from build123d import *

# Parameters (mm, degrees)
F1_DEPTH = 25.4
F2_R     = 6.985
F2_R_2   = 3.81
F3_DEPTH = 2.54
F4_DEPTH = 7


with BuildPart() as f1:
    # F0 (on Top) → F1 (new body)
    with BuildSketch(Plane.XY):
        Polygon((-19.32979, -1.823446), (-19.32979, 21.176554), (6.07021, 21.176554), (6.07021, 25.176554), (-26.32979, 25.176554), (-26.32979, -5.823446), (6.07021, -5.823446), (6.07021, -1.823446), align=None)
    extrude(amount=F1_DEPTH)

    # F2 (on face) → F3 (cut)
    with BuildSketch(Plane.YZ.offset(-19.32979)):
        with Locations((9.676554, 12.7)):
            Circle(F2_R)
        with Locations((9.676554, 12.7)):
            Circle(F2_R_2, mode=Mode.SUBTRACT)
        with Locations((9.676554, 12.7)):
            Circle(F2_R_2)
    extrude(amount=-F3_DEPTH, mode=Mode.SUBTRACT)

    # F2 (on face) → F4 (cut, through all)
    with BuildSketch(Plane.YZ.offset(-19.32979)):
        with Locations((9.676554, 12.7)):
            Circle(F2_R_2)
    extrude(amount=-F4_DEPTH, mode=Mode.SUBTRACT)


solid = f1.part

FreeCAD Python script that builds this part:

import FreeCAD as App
import Part
import Sketcher

V = App.Vector


def add_polygon(sketch, points):
    """Adds a closed chain of lines whose ends are joined by coincident constraints."""
    first, n = sketch.GeometryCount, len(points)
    for a, b in zip(points, points[1:] + points[:1]):
        sketch.addGeometry(Part.LineSegment(App.Vector(*a, 0), App.Vector(*b, 0)), False)
    for i in range(n):
        sketch.addConstraint(Sketcher.Constraint("Coincident", first + i, 2, first + (i + 1) % n, 1))

doc = App.newDocument("Part")
body = doc.addObject("PartDesign::Body", "Body")

# Sketch on XY plane
sketch1 = body.newObject("Sketcher::SketchObject", "Sketch")
sketch1.AttachmentSupport = (doc.getObject("XY_Plane"), [""])
sketch1.MapMode = "FlatFace"
add_polygon(sketch1, [(-19.32979, -1.823446), (-19.32979, 21.176554), (6.07021, 21.176554), (6.07021, 25.176554), (-26.32979, 25.176554), (-26.32979, -5.823446), (6.07021, -5.823446), (6.07021, -1.823446)])  # lines 0-7
sketch1.addConstraint([
    Sketcher.Constraint("Vertical", 0),
    Sketcher.Constraint("Horizontal", 1),
    Sketcher.Constraint("Vertical", 2),
    Sketcher.Constraint("Horizontal", 3),
    Sketcher.Constraint("Vertical", 4),
    Sketcher.Constraint("Horizontal", 5),
    Sketcher.Constraint("Vertical", 6),
    Sketcher.Constraint("Horizontal", 7),
    Sketcher.Constraint("Vertical", 2, 2, 5, 2),
    Sketcher.Constraint("Equal", 2, 6),
    Sketcher.Constraint("DistanceY", 0, 1, 0, 2, 23.0),
    Sketcher.Constraint("DistanceY", 2, 1, 2, 2, 4.0),
    Sketcher.Constraint("DistanceX", 1, 1, 1, 2, 25.4),
    Sketcher.Constraint("DistanceX", 3, 2, 3, 1, 32.4),
    Sketcher.Constraint("DistanceX", 0, 2, -1, 1, 19.32979),
    Sketcher.Constraint("DistanceY", -1, 1, 0, 2, 21.176554),
])
pad1 = body.newObject("PartDesign::Pad", "Pad")
pad1.Profile = sketch1
pad1.Length = 25.4

# Sketch on YZ plane
sketch2 = body.newObject("Sketcher::SketchObject", "Sketch001")
sketch2.AttachmentSupport = (doc.getObject("YZ_Plane"), [""])
sketch2.MapMode = "FlatFace"
sketch2.AttachmentOffset = App.Placement(V(0, 0, -19.32979), App.Rotation())
sketch2.addGeometry(Part.Circle(V(9.676554, 12.7, 0), V(0, 0, 1), 6.985), False)
sketch2.addConstraint([
    Sketcher.Constraint("Diameter", 0, 13.97),
    Sketcher.Constraint("DistanceY", -1, 1, 0, 3, 12.7),
    Sketcher.Constraint("DistanceX", -1, 1, 0, 3, 9.676554),
])
pocket1 = body.newObject("PartDesign::Pocket", "Pocket")
pocket1.Profile = sketch2
pocket1.Length = 2.54

# Sketch on YZ plane
sketch3 = body.newObject("Sketcher::SketchObject", "Sketch002")
sketch3.AttachmentSupport = (doc.getObject("YZ_Plane"), [""])
sketch3.MapMode = "FlatFace"
sketch3.AttachmentOffset = App.Placement(V(0, 0, -19.32979), App.Rotation())
sketch3.addGeometry(Part.Circle(V(9.676554, 12.7, 0), V(0, 0, 1), 3.81), False)
sketch3.addConstraint([
    Sketcher.Constraint("Diameter", 0, 7.62),
    Sketcher.Constraint("DistanceY", -1, 1, 0, 3, 12.7),
    Sketcher.Constraint("DistanceX", -1, 1, 0, 3, 9.676554),
])
pocket2 = body.newObject("PartDesign::Pocket", "Pocket001")
pocket2.Profile = sketch3
pocket2.Type = "ThroughAll"

doc.recompute()
